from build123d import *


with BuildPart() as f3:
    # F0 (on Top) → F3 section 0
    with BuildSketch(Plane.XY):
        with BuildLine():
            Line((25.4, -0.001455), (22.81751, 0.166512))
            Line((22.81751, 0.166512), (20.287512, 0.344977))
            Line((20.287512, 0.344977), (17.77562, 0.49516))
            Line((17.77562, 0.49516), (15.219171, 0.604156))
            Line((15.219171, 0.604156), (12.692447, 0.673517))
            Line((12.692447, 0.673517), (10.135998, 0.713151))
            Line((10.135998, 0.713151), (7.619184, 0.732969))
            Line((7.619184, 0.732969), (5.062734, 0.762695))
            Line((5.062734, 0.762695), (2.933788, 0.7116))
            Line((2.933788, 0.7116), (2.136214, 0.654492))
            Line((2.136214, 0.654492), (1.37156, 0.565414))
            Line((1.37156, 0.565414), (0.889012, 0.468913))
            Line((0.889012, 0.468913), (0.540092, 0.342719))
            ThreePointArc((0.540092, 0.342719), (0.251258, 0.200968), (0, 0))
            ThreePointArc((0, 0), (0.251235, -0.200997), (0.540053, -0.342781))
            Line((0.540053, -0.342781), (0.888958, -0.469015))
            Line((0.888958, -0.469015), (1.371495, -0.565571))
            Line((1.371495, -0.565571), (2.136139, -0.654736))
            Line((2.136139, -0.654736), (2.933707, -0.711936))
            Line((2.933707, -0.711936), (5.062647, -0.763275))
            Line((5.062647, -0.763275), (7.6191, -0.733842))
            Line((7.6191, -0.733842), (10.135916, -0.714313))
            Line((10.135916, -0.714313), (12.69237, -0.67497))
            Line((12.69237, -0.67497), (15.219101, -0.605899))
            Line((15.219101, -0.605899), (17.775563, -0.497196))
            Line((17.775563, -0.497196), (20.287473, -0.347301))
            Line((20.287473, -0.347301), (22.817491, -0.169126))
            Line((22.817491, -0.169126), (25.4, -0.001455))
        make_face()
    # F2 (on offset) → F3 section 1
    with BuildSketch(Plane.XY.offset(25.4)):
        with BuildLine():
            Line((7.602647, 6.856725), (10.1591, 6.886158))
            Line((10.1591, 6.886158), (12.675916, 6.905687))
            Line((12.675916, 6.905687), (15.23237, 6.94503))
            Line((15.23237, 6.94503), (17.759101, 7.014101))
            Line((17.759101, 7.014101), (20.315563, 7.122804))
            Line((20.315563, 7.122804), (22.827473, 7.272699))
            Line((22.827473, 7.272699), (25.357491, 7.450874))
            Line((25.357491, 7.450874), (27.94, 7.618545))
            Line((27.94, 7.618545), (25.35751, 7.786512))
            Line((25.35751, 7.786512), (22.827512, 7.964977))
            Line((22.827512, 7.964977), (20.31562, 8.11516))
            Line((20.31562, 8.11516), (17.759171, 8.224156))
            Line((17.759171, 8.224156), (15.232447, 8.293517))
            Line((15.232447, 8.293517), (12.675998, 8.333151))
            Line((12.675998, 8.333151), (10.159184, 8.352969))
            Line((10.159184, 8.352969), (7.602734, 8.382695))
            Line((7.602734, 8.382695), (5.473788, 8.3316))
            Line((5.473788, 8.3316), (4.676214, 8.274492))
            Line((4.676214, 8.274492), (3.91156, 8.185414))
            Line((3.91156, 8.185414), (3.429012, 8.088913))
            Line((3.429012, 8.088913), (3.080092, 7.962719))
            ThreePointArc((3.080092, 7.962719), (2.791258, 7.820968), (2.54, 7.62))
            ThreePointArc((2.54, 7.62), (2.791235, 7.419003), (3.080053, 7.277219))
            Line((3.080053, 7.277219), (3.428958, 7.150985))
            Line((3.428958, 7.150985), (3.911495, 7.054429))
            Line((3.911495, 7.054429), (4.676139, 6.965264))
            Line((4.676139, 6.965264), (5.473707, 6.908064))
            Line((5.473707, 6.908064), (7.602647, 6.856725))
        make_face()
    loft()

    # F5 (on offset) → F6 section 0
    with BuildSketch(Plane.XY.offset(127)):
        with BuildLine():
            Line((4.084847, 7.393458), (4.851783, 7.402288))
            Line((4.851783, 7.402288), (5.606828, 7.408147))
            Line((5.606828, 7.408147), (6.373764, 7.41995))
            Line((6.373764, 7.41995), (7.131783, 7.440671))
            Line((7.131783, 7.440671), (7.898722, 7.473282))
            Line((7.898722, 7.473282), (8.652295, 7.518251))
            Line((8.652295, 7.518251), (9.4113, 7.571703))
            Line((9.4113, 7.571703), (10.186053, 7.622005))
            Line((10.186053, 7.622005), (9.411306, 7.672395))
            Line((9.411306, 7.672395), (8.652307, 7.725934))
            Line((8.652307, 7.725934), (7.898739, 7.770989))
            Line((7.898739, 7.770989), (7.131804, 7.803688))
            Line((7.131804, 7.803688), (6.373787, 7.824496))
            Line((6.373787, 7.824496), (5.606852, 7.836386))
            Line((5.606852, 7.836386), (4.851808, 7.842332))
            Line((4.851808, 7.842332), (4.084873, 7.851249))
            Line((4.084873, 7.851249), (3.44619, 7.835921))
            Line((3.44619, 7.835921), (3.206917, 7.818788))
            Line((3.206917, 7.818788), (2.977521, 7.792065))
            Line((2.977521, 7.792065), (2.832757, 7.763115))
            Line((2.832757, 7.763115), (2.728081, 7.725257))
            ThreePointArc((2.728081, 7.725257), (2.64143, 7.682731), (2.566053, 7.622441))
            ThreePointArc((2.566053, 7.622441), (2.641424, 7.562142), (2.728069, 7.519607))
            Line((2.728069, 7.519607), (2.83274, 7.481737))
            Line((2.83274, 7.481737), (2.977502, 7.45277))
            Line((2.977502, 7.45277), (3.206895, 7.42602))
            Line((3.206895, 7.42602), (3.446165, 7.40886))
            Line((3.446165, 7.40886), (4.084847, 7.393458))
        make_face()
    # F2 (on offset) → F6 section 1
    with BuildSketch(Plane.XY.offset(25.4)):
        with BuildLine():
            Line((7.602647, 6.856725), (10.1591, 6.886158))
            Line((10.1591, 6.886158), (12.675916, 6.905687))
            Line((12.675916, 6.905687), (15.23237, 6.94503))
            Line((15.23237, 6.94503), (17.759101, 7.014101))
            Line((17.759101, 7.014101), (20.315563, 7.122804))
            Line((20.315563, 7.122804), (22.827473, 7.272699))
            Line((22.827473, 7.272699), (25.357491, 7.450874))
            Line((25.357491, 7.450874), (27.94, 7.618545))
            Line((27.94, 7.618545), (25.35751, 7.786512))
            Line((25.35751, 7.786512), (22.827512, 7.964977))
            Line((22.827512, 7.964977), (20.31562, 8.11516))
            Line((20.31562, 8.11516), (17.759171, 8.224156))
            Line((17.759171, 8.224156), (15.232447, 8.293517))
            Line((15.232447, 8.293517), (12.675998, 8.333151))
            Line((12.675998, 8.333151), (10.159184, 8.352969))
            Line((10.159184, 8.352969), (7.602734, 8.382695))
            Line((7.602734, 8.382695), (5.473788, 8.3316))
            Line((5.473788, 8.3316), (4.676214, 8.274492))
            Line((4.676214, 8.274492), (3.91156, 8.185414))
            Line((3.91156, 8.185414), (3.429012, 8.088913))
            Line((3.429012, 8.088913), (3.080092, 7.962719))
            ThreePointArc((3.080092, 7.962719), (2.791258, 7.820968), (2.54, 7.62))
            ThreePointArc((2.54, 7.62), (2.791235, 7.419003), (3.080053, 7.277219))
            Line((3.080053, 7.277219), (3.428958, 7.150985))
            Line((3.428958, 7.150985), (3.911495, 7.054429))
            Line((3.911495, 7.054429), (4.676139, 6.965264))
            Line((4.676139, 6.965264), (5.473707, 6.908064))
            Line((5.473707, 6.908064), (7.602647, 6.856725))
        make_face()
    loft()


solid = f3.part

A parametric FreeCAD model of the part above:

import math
import FreeCAD as App
import Part
import Sketcher
from FreeCAD import Vector
Q = App.Units.Quantity

doc = App.newDocument("Part")
body = doc.addObject("PartDesign::Body", "Body")

sketch1 = doc.addObject("Sketcher::SketchObject", "Sketch")
body.addObject(sketch1)
sketch1.AttachmentSupport = (doc.XY_Plane, [""])
sketch1.MapMode = "FlatFace"
sketch1.addGeometry([
    Part.LineSegment(Vector(25.4, -0.001455, 0), Vector(22.81751, 0.166512, 0)),
    Part.LineSegment(Vector(22.81751, 0.166512, 0), Vector(20.287512, 0.344977, 0)),
    Part.LineSegment(Vector(20.287512, 0.344977, 0), Vector(17.77562, 0.49516, 0)),
    Part.LineSegment(Vector(17.77562, 0.49516, 0), Vector(15.219171, 0.604156, 0)),
    Part.LineSegment(Vector(15.219171, 0.604156, 0), Vector(12.692447, 0.673517, 0)),
    Part.LineSegment(Vector(12.692447, 0.673517, 0), Vector(10.135998, 0.713151, 0)),
    Part.LineSegment(Vector(10.135998, 0.713151, 0), Vector(7.619184, 0.732969, 0)),
    Part.LineSegment(Vector(7.619184, 0.732969, 0), Vector(5.062734, 0.762695, 0)),
    Part.LineSegment(Vector(5.062734, 0.762695, 0), Vector(2.933788, 0.7116, 0)),
    Part.LineSegment(Vector(2.933788, 0.7116, 0), Vector(2.136214, 0.654492, 0)),
    Part.LineSegment(Vector(2.136214, 0.654492, 0), Vector(1.37156, 0.565414, 0)),
    Part.LineSegment(Vector(1.37156, 0.565414, 0), Vector(0.889012, 0.468913, 0)),
    Part.LineSegment(Vector(0.889012, 0.468913, 0), Vector(0.540092, 0.342719, 0)),
    Part.ArcOfCircle(Part.Circle(Vector(1.042102, -1.045326, 0), Vector(0, 0, 1), 1.476037), math.radians(109.883384), math.radians(134.911503)),
    Part.ArcOfCircle(Part.Circle(Vector(1.042218, 1.045201, 0), Vector(0, 0, 1), 1.47603), math.radians(-134.918124), math.radians(-109.889884)),
    Part.LineSegment(Vector(0.540053, -0.342781, 0), Vector(0.888958, -0.469015, 0)),
    Part.LineSegment(Vector(0.888958, -0.469015, 0), Vector(1.371495, -0.565571, 0)),
    Part.LineSegment(Vector(1.371495, -0.565571, 0), Vector(2.136139, -0.654736, 0)),
    Part.LineSegment(Vector(2.136139, -0.654736, 0), Vector(2.933707, -0.711936, 0)),
    Part.LineSegment(Vector(2.933707, -0.711936, 0), Vector(5.062647, -0.763275, 0)),
    Part.LineSegment(Vector(5.062647, -0.763275, 0), Vector(7.6191, -0.733842, 0)),
    Part.LineSegment(Vector(7.6191, -0.733842, 0), Vector(10.135916, -0.714313, 0)),
    Part.LineSegment(Vector(10.135916, -0.714313, 0), Vector(12.69237, -0.67497, 0)),
    Part.LineSegment(Vector(12.69237, -0.67497, 0), Vector(15.219101, -0.605899, 0)),
    Part.LineSegment(Vector(15.219101, -0.605899, 0), Vector(17.775563, -0.497196, 0)),
    Part.LineSegment(Vector(17.775563, -0.497196, 0), Vector(20.287473, -0.347301, 0)),
    Part.LineSegment(Vector(20.287473, -0.347301, 0), Vector(22.817491, -0.169126, 0)),
    Part.LineSegment(Vector(22.817491, -0.169126, 0), Vector(25.4, -0.001455, 0)),
], False)
sketch1.addConstraint([
    Sketcher.Constraint("Coincident", 0, 2, 1, 1),
    Sketcher.Constraint("Coincident", 1, 2, 2, 1),
    Sketcher.Constraint("Coincident", 2, 2, 3, 1),
    Sketcher.Constraint("Coincident", 3, 2, 4, 1),
    Sketcher.Constraint("Coincident", 4, 2, 5, 1),
    Sketcher.Constraint("Coincident", 5, 2, 6, 1),
    Sketcher.Constraint("Coincident", 6, 2, 7, 1),
    Sketcher.Constraint("Coincident", 7, 2, 8, 1),
    Sketcher.Constraint("Coincident", 8, 2, 9, 1),
    Sketcher.Constraint("Coincident", 9, 2, 10, 1),
    Sketcher.Constraint("Coincident", 10, 2, 11, 1),
    Sketcher.Constraint("Coincident", 11, 2, 12, 1),
    Sketcher.Constraint("Coincident", 12, 2, 13, 1),
    Sketcher.Constraint("Coincident", 13, 2, 14, 1),
    Sketcher.Constraint("Coincident", 14, 2, 15, 1),
    Sketcher.Constraint("Coincident", 15, 2, 16, 1),
    Sketcher.Constraint("Coincident", 16, 2, 17, 1),
    Sketcher.Constraint("Coincident", 17, 2, 18, 1),
    Sketcher.Constraint("Coincident", 18, 2, 19, 1),
    Sketcher.Constraint("Coincident", 19, 2, 20, 1),
    Sketcher.Constraint("Coincident", 20, 2, 21, 1),
    Sketcher.Constraint("Coincident", 21, 2, 22, 1),
    Sketcher.Constraint("Coincident", 22, 2, 23, 1),
    Sketcher.Constraint("Coincident", 23, 2, 24, 1),
    Sketcher.Constraint("Coincident", 24, 2, 25, 1),
    Sketcher.Constraint("Coincident", 25, 2, 26, 1),
    Sketcher.Constraint("Coincident", 26, 2, 27, 1),
    Sketcher.Constraint("Coincident", 27, 2, 0, 1),
    Sketcher.Constraint("Coincident", 13, 2, -1, 1),
    Sketcher.Constraint("DistanceX", -1, 1, 27, 2, Q("25.4 mm")),
    Sketcher.Constraint("Radius", 14, Q("1.47603 mm")),
    Sketcher.Constraint("DistanceX", -1, 1, 5, 2, Q("10.135998 mm")),
    Sketcher.Constraint("Radius", 13, Q("1.476037 mm")),
    Sketcher.Constraint("DistanceY", -1, 1, 14, 3, Q("1.045201 mm")),
    Sketcher.Constraint("DistanceY", -1, 1, 8, 2, Q("0.7116 mm")),
    Sketcher.Constraint("DistanceX", -1, 1, 20, 2, Q("7.6191 mm")),
    Sketcher.Constraint("DistanceX", -1, 1, 23, 2, Q("15.219101 mm")),
    Sketcher.Constraint("DistanceY", 23, 2, -1, 1, Q("0.605899 mm")),
    Sketcher.Constraint("DistanceY", 25, 2, -1, 1, Q("0.347301 mm")),
    Sketcher.Constraint("DistanceX", 14, 3, 2, 2, Q("16.733402 mm")),
    Sketcher.Constraint("DistanceY", 11, 2, 10, 2, Q("0.096501 mm")),
    Sketcher.Constraint("DistanceX", 11, 2, 9, 2, Q("1.247202 mm")),
    Sketcher.Constraint("DistanceY", 14, 2, 12, 2, Q("0.6855 mm")),
    Sketcher.Constraint("DistanceY", 18, 2, 17, 2, Q("0.0572 mm")),
    Sketcher.Constraint("DistanceX", 22, 2, 3, 2, Q("2.526801 mm")),
    Sketcher.Constraint("Distance", 3, Q("2.558772 mm")),
    Sketcher.Constraint("Distance", 8, Q("2.129559 mm")),
    Sketcher.Constraint("Distance", 12, Q("0.371039 mm")),
    Sketcher.Constraint("Distance", 15, Q("0.371039 mm")),
    Sketcher.Constraint("Distance", 19, Q("2.129559 mm")),
    Sketcher.Constraint("Distance", 21, Q("2.516892 mm")),
    Sketcher.Constraint("Distance", 25, Q("2.516378 mm")),
    Sketcher.Constraint("DistanceX", -1, 1, 0, 2, Q("22.81751 mm")),
    Sketcher.Constraint("DistanceX", -1, 1, 1, 2, Q("20.287512 mm")),
    Sketcher.Constraint("DistanceY", -1, 1, 2, 2, Q("0.49516 mm")),
    Sketcher.Constraint("DistanceX", -1, 1, 3, 2, Q("15.219171 mm")),
    Sketcher.Constraint("DistanceY", -1, 1, 5, 2, Q("0.713151 mm")),
    Sketcher.Constraint("DistanceY", -1, 1, 6, 2, Q("0.732969 mm")),
    Sketcher.Constraint("DistanceY", -1, 1, 9, 2, Q("0.654492 mm")),
    Sketcher.Constraint("DistanceX", -1, 1, 10, 2, Q("1.37156 mm")),
    Sketcher.Constraint("DistanceY", -1, 1, 12, 2, Q("0.342719 mm")),
    Sketcher.Constraint("DistanceX", -1, 1, 15, 2, Q("0.888958 mm")),
    Sketcher.Constraint("DistanceY", 16, 2, -1, 1, Q("0.565571 mm")),
    Sketcher.Constraint("DistanceX", -1, 1, 17, 2, Q("2.136139 mm")),
    Sketcher.Constraint("DistanceY", 20, 2, -1, 1, Q("0.733842 mm")),
    Sketcher.Constraint("DistanceY", 22, 2, -1, 1, Q("0.67497 mm")),
    Sketcher.Constraint("DistanceX", -1, 1, 26, 2, Q("22.817491 mm")),
    Sketcher.Constraint("DistanceY", 0, 2, 14, 3, Q("0.878689 mm")),
    Sketcher.Constraint("DistanceY", 13, 3, 0, 2, Q("1.211838 mm")),
    Sketcher.Constraint("DistanceY", 1, 2, 3, 2, Q("0.259179 mm")),
    Sketcher.Constraint("DistanceY", 3, 2, 4, 2, Q("0.069361 mm")),
    Sketcher.Constraint("DistanceX", 14, 3, 4, 2, Q("11.650229 mm")),
    Sketcher.Constraint("DistanceX", 13, 3, 6, 2, Q("6.577082 mm")),
    Sketcher.Constraint("DistanceX", 7, 2, 6, 2, Q("2.55645 mm")),
    Sketcher.Constraint("DistanceY", 13, 3, 7, 2, Q("1.808021 mm")),
    Sketcher.Constraint("DistanceX", 13, 3, 9, 2, Q("1.094112 mm")),
    Sketcher.Constraint("DistanceY", 13, 3, 17, 2, Q("0.39059 mm")),
    Sketcher.Constraint("DistanceX", 17, 2, 18, 2, Q("0.797568 mm")),
    Sketcher.Constraint("DistanceY", 19, 2, 7, 2, Q("1.52597 mm")),
    Sketcher.Constraint("DistanceY", 20, 2, 21, 2, Q("0.019529 mm")),
    Sketcher.Constraint("DistanceX", 23, 2, 24, 2, Q("2.556462 mm")),
    Sketcher.Constraint("DistanceX", 24, 2, 25, 2, Q("2.51191 mm")),
    Sketcher.Constraint("DistanceY", 24, 2, 26, 2, Q("0.32807 mm")),
    Sketcher.Constraint("DistanceY", 26, 2, 27, 2, Q("0.167671 mm")),
    Sketcher.Constraint("Distance", 16, Q("0.492103 mm")),
])

sketch2 = doc.addObject("Sketcher::SketchObject", "Sketch001")
body.addObject(sketch2)
sketch2.AttachmentSupport = (doc.XY_Plane, [""])
sketch2.MapMode = "FlatFace"
sketch2.AttachmentOffset = App.Placement(Vector(0, 0, 25.4), App.Rotation())
sketch2.addGeometry([
    Part.LineSegment(Vector(7.6, 6.86, 0), Vector(10.16, 6.89, 0)),
    Part.LineSegment(Vector(10.16, 6.89, 0), Vector(12.68, 6.91, 0)),
    Part.LineSegment(Vector(12.68, 6.91, 0), Vector(15.23, 6.95, 0)),
    Part.LineSegment(Vector(15.23, 6.95, 0), Vector(17.76, 7.01, 0)),
    Part.LineSegment(Vector(17.76, 7.01, 0), Vector(20.32, 7.12, 0)),
    Part.LineSegment(Vector(20.32, 7.12, 0), Vector(22.83, 7.27, 0)),
    Part.LineSegment(Vector(22.83, 7.27, 0), Vector(25.36, 7.45, 0)),
    Part.LineSegment(Vector(25.36, 7.45, 0), Vector(27.94, 7.62, 0)),
    Part.LineSegment(Vector(27.94, 7.62, 0), Vector(25.36, 7.79, 0)),
    Part.LineSegment(Vector(25.36, 7.79, 0), Vector(22.83, 7.96, 0)),
    Part.LineSegment(Vector(22.83, 7.96, 0), Vector(20.32, 8.12, 0)),
    Part.LineSegment(Vector(20.32, 8.12, 0), Vector(17.76, 8.22, 0)),
    Part.LineSegment(Vector(17.76, 8.22, 0), Vector(15.23, 8.29, 0)),
    Part.LineSegment(Vector(15.23, 8.29, 0), Vector(12.68, 8.33, 0)),
    Part.LineSegment(Vector(12.68, 8.33, 0), Vector(10.16, 8.35, 0)),
    Part.LineSegment(Vector(10.16, 8.35, 0), Vector(7.6, 8.38, 0)),
    Part.LineSegment(Vector(7.6, 8.38, 0), Vector(5.47, 8.33, 0)),
    Part.LineSegment(Vector(5.47, 8.33, 0), Vector(4.68, 8.27, 0)),
    Part.LineSegment(Vector(4.68, 8.27, 0), Vector(3.91, 8.19, 0)),
    Part.LineSegment(Vector(3.91, 8.19, 0), Vector(3.43, 8.09, 0)),
    Part.LineSegment(Vector(3.43, 8.09, 0), Vector(3.08, 7.96, 0)),
    Part.ArcOfCircle(Part.Circle(Vector(3.58, 6.57, 0), Vector(0, 0, 1), 1.48), math.radians(110), math.radians(135)),
    Part.ArcOfCircle(Part.Circle(Vector(3.58, 8.67, 0), Vector(0, 0, 1), 1.48), math.radians(-135), math.radians(-110)),
    Part.LineSegment(Vector(3.08, 7.28, 0), Vector(3.43, 7.15, 0)),
    Part.LineSegment(Vector(3.43, 7.15, 0), Vector(3.91, 7.05, 0)),
    Part.LineSegment(Vector(3.91, 7.05, 0), Vector(4.68, 6.97, 0)),
    Part.LineSegment(Vector(4.68, 6.97, 0), Vector(5.47, 6.91, 0)),
    Part.LineSegment(Vector(5.47, 6.91, 0), Vector(7.6, 6.86, 0)),
], False)
sketch2.addConstraint([
    Sketcher.Constraint("Coincident", 0, 2, 1, 1),
    Sketcher.Constraint("Coincident", 1, 2, 2, 1),
    Sketcher.Constraint("Coincident", 2, 2, 3, 1),
    Sketcher.Constraint("Coincident", 3, 2, 4, 1),
    Sketcher.Constraint("Coincident", 4, 2, 5, 1),
    Sketcher.Constraint("Coincident", 5, 2, 6, 1),
    Sketcher.Constraint("Coincident", 6, 2, 7, 1),
    Sketcher.Constraint("Coincident", 7, 2, 8, 1),
    Sketcher.Constraint("Coincident", 8, 2, 9, 1),
    Sketcher.Constraint("Coincident", 9, 2, 10, 1),
    Sketcher.Constraint("Coincident", 10, 2, 11, 1),
    Sketcher.Constraint("Coincident", 11, 2, 12, 1),
    Sketcher.Constraint("Coincident", 12, 2, 13, 1),
    Sketcher.Constraint("Coincident", 13, 2, 14, 1),
    Sketcher.Constraint("Coincident", 14, 2, 15, 1),
    Sketcher.Constraint("Coincident", 15, 2, 16, 1),
    Sketcher.Constraint("Coincident", 16, 2, 17, 1),
    Sketcher.Constraint("Coincident", 17, 2, 18, 1),
    Sketcher.Constraint("Coincident", 18, 2, 19, 1),
    Sketcher.Constraint("Coincident", 19, 2, 20, 1),
    Sketcher.Constraint("Coincident", 20, 2, 21, 1),
    Sketcher.Constraint("Coincident", 21, 2, 22, 1),
    Sketcher.Constraint("Coincident", 22, 2, 23, 1),
    Sketcher.Constraint("Coincident", 23, 2, 24, 1),
    Sketcher.Constraint("Coincident", 24, 2, 25, 1),
    Sketcher.Constraint("Coincident", 25, 2, 26, 1),
    Sketcher.Constraint("Coincident", 26, 2, 27, 1),
    Sketcher.Constraint("Coincident", 27, 2, 0, 1),
    Sketcher.Constraint("Equal", 7, 8),
    Sketcher.Constraint("Equal", 6, 9),
    Sketcher.Constraint("Equal", 5, 10),
    Sketcher.Constraint("Equal", 4, 11),
    Sketcher.Constraint("Equal", 3, 12),
    Sketcher.Constraint("Equal", 2, 13),
    Sketcher.Constraint("Equal", 1, 14),
    Sketcher.Constraint("Equal", 0, 15),
    Sketcher.Constraint("Equal", 20, 23),
    Sketcher.Constraint("Equal", 19, 24),
    Sketcher.Constraint("Equal", 18, 25),
    Sketcher.Constraint("Equal", 17, 26),
    Sketcher.Constraint("Equal", 16, 27),
    Sketcher.Constraint("DistanceX", 0, 2, 3, 2, Q("7.600001 mm")),
    Sketcher.Constraint("DistanceX", -1, 1, 7, 2, Q("27.94 mm")),
    Sketcher.Constraint("DistanceX", -1, 1, 21, 2, Q("2.54 mm")),
    Sketcher.Constraint("DistanceY", -1, 1, 21, 2, Q("7.62 mm")),
    Sketcher.Constraint("Radius", 22, Q("1.47603 mm")),
    Sketcher.Constraint("DistanceX", 9, 2, 8, 2, Q("2.529998 mm")),
    Sketcher.Constraint("Radius", 21, Q("1.476037 mm")),
    Sketcher.Constraint("DistanceX", 21, 3, 3, 2, Q("14.176999 mm")),
    Sketcher.Constraint("DistanceY", -1, 1, 22, 3, Q("8.665201 mm")),
    Sketcher.Constraint("DistanceX", -1, 1, 0, 2, Q("10.1591 mm")),
    Sketcher.Constraint("DistanceY", -1, 1, 3, 2, Q("7.014101 mm")),
    Sketcher.Constraint("DistanceY", -1, 1, 5, 2, Q("7.272699 mm")),
    Sketcher.Constraint("DistanceY", -1, 1, 16, 2, Q("8.3316 mm")),
    Sketcher.Constraint("DistanceX", 2, 2, 11, 2, Q("2.526801 mm")),
    Sketcher.Constraint("DistanceY", 19, 2, 18, 2, Q("0.096501 mm")),
    Sketcher.Constraint("DistanceX", 19, 2, 17, 2, Q("1.247202 mm")),
    Sketcher.Constraint("DistanceY", 22, 2, 20, 2, Q("0.6855 mm")),
    Sketcher.Constraint("DistanceY", 26, 2, 25, 2, Q("0.0572 mm")),
    Sketcher.Constraint("Distance", 1, Q("2.516892 mm")),
    Sketcher.Constraint("Distance", 5, Q("2.516378 mm")),
    Sketcher.Constraint("Distance", 11, Q("2.558772 mm")),
    Sketcher.Constraint("Distance", 16, Q("2.129559 mm")),
    Sketcher.Constraint("Distance", 20, Q("0.371039 mm")),
    Sketcher.Constraint("DistanceX", -1, 1, 2, 2, Q("15.23237 mm")),
    Sketcher.Constraint("DistanceY", -1, 1, 2, 2, Q("6.94503 mm")),
    Sketcher.Constraint("DistanceX", -1, 1, 6, 2, Q("25.357491 mm")),
    Sketcher.Constraint("DistanceX", -1, 1, 8, 2, Q("25.35751 mm")),
    Sketcher.Constraint("DistanceX", -1, 1, 10, 2, Q("20.31562 mm")),
    Sketcher.Constraint("DistanceY", -1, 1, 10, 2, Q("8.11516 mm")),
    Sketcher.Constraint("DistanceY", -1, 1, 13, 2, Q("8.333151 mm")),
    Sketcher.Constraint("DistanceY", -1, 1, 14, 2, Q("8.352969 mm")),
    Sketcher.Constraint("DistanceX", -1, 1, 18, 2, Q("3.91156 mm")),
    Sketcher.Constraint("DistanceX", -1, 1, 20, 2, Q("3.080092 mm")),
    Sketcher.Constraint("DistanceX", -1, 1, 23, 2, Q("3.428958 mm")),
    Sketcher.Constraint("DistanceY", -1, 1, 24, 2, Q("7.054429 mm")),
    Sketcher.Constraint("DistanceX", -1, 1, 25, 2, Q("4.676139 mm")),
    Sketcher.Constraint("DistanceY", 0, 2, 1, 2, Q("0.019529 mm")),
    Sketcher.Constraint("DistanceX", 3, 2, 4, 2, Q("2.556462 mm")),
    Sketcher.Constraint("DistanceY", 1, 2, 5, 2, Q("0.367012 mm")),
    Sketcher.Constraint("DistanceY", 4, 2, 6, 2, Q("0.32807 mm")),
    Sketcher.Constraint("DistanceY", 11, 2, 12, 2, Q("0.069361 mm")),
    Sketcher.Constraint("DistanceX", 15, 2, 14, 2, Q("2.55645 mm")),
    Sketcher.Constraint("DistanceY", 21, 3, 15, 2, Q("1.808021 mm")),
    Sketcher.Constraint("DistanceY", 17, 2, 22, 3, Q("0.390709 mm")),
    Sketcher.Constraint("DistanceX", 21, 3, 17, 2, Q("1.094112 mm")),
])

additiveloft = doc.addObject("PartDesign::AdditiveLoft", "AdditiveLoft")
body.addObject(additiveloft)
additiveloft.Profile = sketch1
additiveloft.Sections = [sketch2]

sketch3 = doc.addObject("Sketcher::SketchObject", "Sketch002")
body.addObject(sketch3)
sketch3.AttachmentSupport = (doc.XY_Plane, [""])
sketch3.MapMode = "FlatFace"
sketch3.AttachmentOffset = App.Placement(Vector(0, 0, 127), App.Rotation())
sketch3.addGeometry([
    Part.LineSegment(Vector(4.08, 7.39, 0), Vector(4.85, 7.4, 0)),
    Part.LineSegment(Vector(4.85, 7.4, 0), Vector(5.61, 7.41, 0)),
    Part.LineSegment(Vector(5.61, 7.41, 0), Vector(6.37, 7.42, 0)),
    Part.LineSegment(Vector(6.37, 7.42, 0), Vector(7.13, 7.44, 0)),
    Part.LineSegment(Vector(7.13, 7.44, 0), Vector(7.9, 7.47, 0)),
    Part.LineSegment(Vector(7.9, 7.47, 0), Vector(8.65, 7.52, 0)),
    Part.LineSegment(Vector(8.65, 7.52, 0), Vector(9.41, 7.57, 0)),
    Part.LineSegment(Vector(9.41, 7.57, 0), Vector(10.19, 7.62, 0)),
    Part.LineSegment(Vector(10.19, 7.62, 0), Vector(9.41, 7.67, 0)),
    Part.LineSegment(Vector(9.41, 7.67, 0), Vector(8.65, 7.73, 0)),
    Part.LineSegment(Vector(8.65, 7.73, 0), Vector(7.9, 7.77, 0)),
    Part.LineSegment(Vector(7.9, 7.77, 0), Vector(7.13, 7.8, 0)),
    Part.LineSegment(Vector(7.13, 7.8, 0), Vector(6.37, 7.82, 0)),
    Part.LineSegment(Vector(6.37, 7.82, 0), Vector(5.61, 7.84, 0)),
    Part.LineSegment(Vector(5.61, 7.84, 0), Vector(4.85, 7.84, 0)),
    Part.LineSegment(Vector(4.85, 7.84, 0), Vector(4.08, 7.85, 0)),
    Part.LineSegment(Vector(4.08, 7.85, 0), Vector(3.45, 7.84, 0)),
    Part.LineSegment(Vector(3.45, 7.84, 0), Vector(3.21, 7.82, 0)),
    Part.LineSegment(Vector(3.21, 7.82, 0), Vector(2.98, 7.79, 0)),
    Part.LineSegment(Vector(2.98, 7.79, 0), Vector(2.83, 7.76, 0)),
    Part.LineSegment(Vector(2.83, 7.76, 0), Vector(2.73, 7.73, 0)),
    Part.ArcOfCircle(Part.Circle(Vector(2.88, 7.31, 0), Vector(0, 0, 1), 0.44), math.radians(110), math.radians(135)),
    Part.ArcOfCircle(Part.Circle(Vector(2.88, 7.94, 0), Vector(0, 0, 1), 0.44), math.radians(-135), math.radians(-110)),
    Part.LineSegment(Vector(2.73, 7.52, 0), Vector(2.83, 7.48, 0)),
    Part.LineSegment(Vector(2.83, 7.48, 0), Vector(2.98, 7.45, 0)),
    Part.LineSegment(Vector(2.98, 7.45, 0), Vector(3.21, 7.43, 0)),
    Part.LineSegment(Vector(3.21, 7.43, 0), Vector(3.45, 7.41, 0)),
    Part.LineSegment(Vector(3.45, 7.41, 0), Vector(4.08, 7.39, 0)),
], False)
sketch3.addConstraint([
    Sketcher.Constraint("Coincident", 0, 2, 1, 1),
    Sketcher.Constraint("Coincident", 1, 2, 2, 1),
    Sketcher.Constraint("Coincident", 2, 2, 3, 1),
    Sketcher.Constraint("Coincident", 3, 2, 4, 1),
    Sketcher.Constraint("Coincident", 4, 2, 5, 1),
    Sketcher.Constraint("Coincident", 5, 2, 6, 1),
    Sketcher.Constraint("Coincident", 6, 2, 7, 1),
    Sketcher.Constraint("Coincident", 7, 2, 8, 1),
    Sketcher.Constraint("Coincident", 8, 2, 9, 1),
    Sketcher.Constraint("Coincident", 9, 2, 10, 1),
    Sketcher.Constraint("Coincident", 10, 2, 11, 1),
    Sketcher.Constraint("Coincident", 11, 2, 12, 1),
    Sketcher.Constraint("Coincident", 12, 2, 13, 1),
    Sketcher.Constraint("Coincident", 13, 2, 14, 1),
    Sketcher.Constraint("Coincident", 14, 2, 15, 1),
    Sketcher.Constraint("Coincident", 15, 2, 16, 1),
    Sketcher.Constraint("Coincident", 16, 2, 17, 1),
    Sketcher.Constraint("Coincident", 17, 2, 18, 1),
    Sketcher.Constraint("Coincident", 18, 2, 19, 1),
    Sketcher.Constraint("Coincident", 19, 2, 20, 1),
    Sketcher.Constraint("Coincident", 20, 2, 21, 1),
    Sketcher.Constraint("Coincident", 21, 2, 22, 1),
    Sketcher.Constraint("Coincident", 22, 2, 23, 1),
    Sketcher.Constraint("Coincident", 23, 2, 24, 1),
    Sketcher.Constraint("Coincident", 24, 2, 25, 1),
    Sketcher.Constraint("Coincident", 25, 2, 26, 1),
    Sketcher.Constraint("Coincident", 26, 2, 27, 1),
    Sketcher.Constraint("Coincident", 27, 2, 0, 1),
    Sketcher.Constraint("Equal", 7, 8),
    Sketcher.Constraint("Equal", 6, 9),
    Sketcher.Constraint("Equal", 5, 10),
    Sketcher.Constraint("Equal", 4, 11),
    Sketcher.Constraint("Equal", 3, 12),
    Sketcher.Constraint("Equal", 2, 13),
    Sketcher.Constraint("Equal", 1, 14),
    Sketcher.Constraint("Equal", 0, 15),
    Sketcher.Constraint("Equal", 20, 23),
    Sketcher.Constraint("Equal", 19, 24),
    Sketcher.Constraint("Equal", 18, 25),
    Sketcher.Constraint("Equal", 17, 26),
    Sketcher.Constraint("Equal", 16, 27),
    Sketcher.Constraint("Radius", 21, Q("0.442819 mm")),
    Sketcher.Constraint("DistanceX", 0, 2, 3, 2, Q("2.28 mm")),
    Sketcher.Constraint("Radius", 22, Q("0.442817 mm")),
    Sketcher.Constraint("DistanceX", 9, 2, 8, 2, Q("0.758999 mm")),
    Sketcher.Constraint("DistanceX", -1, 1, 6, 2, Q("9.4113 mm")),
    Sketcher.Constraint("DistanceX", -1, 1, 24, 2, Q("2.977502 mm")),
    Sketcher.Constraint("DistanceY", 2, 2, 5, 2, Q("0.098301 mm")),
    Sketcher.Constraint("DistanceY", 6, 2, 7, 2, Q("0.050302 mm")),
    Sketcher.Constraint("DistanceY", 10, 2, 11, 2, Q("0.032699 mm")),
    Sketcher.Constraint("DistanceX", 21, 3, 16, 2, Q("0.567502 mm")),
    Sketcher.Constraint("DistanceX", 22, 3, 18, 2, Q("0.098799 mm")),
    Sketcher.Constraint("DistanceY", 21, 3, 23, 2, Q("0.172901 mm")),
    Sketcher.Constraint("DistanceY", 27, 2, 26, 2, Q("0.015402 mm")),
    Sketcher.Constraint("Distance", 11, Q("0.767632 mm")),
    Sketcher.Constraint("Distance", 19, Q("0.14763 mm")),
    Sketcher.Constraint("Distance", 20, Q("0.111312 mm")),
    Sketcher.Constraint("DistanceX", -1, 1, 21, 3, Q("2.878688 mm")),
    Sketcher.Constraint("DistanceY", -1, 1, 22, 3, Q("7.936009 mm")),
    Sketcher.Constraint("DistanceY", -1, 1, 0, 2, Q("7.402288 mm")),
    Sketcher.Constraint("DistanceY", -1, 1, 2, 2, Q("7.41995 mm")),
    Sketcher.Constraint("DistanceY", -1, 1, 3, 2, Q("7.440671 mm")),
    Sketcher.Constraint("DistanceX", -1, 1, 10, 2, Q("7.898739 mm")),
    Sketcher.Constraint("DistanceY", -1, 1, 10, 2, Q("7.770989 mm")),
    Sketcher.Constraint("DistanceY", -1, 1, 15, 2, Q("7.851249 mm")),
    Sketcher.Constraint("DistanceY", -1, 1, 16, 2, Q("7.835921 mm")),
    Sketcher.Constraint("DistanceX", -1, 1, 18, 2, Q("2.977521 mm")),
    Sketcher.Constraint("DistanceX", -1, 1, 20, 2, Q("2.728081 mm")),
    Sketcher.Constraint("DistanceY", -1, 1, 21, 2, Q("7.622441 mm")),
    Sketcher.Constraint("DistanceX", -1, 1, 22, 2, Q("2.728069 mm")),
    Sketcher.Constraint("DistanceY", -1, 1, 25, 2, Q("7.42602 mm")),
    Sketcher.Constraint("DistanceY", -1, 1, 26, 2, Q("7.40886 mm")),
    Sketcher.Constraint("DistanceX", 22, 3, 0, 2, Q("1.973061 mm")),
    Sketcher.Constraint("DistanceY", 0, 2, 1, 2, Q("0.005859 mm")),
    Sketcher.Constraint("DistanceX", 21, 3, 1, 2, Q("2.72814 mm")),
    Sketcher.Constraint("DistanceX", 0, 2, 2, 2, Q("1.521981 mm")),
    Sketcher.Constraint("DistanceX", 3, 2, 4, 2, Q("0.766939 mm")),
    Sketcher.Constraint("DistanceX", 2, 2, 5, 2, Q("2.278531 mm")),
    Sketcher.Constraint("DistanceY", 4, 2, 6, 2, Q("0.098421 mm")),
    Sketcher.Constraint("DistanceX", 4, 2, 7, 2, Q("2.287331 mm")),
    Sketcher.Constraint("DistanceX", 1, 2, 12, 2, Q("0.766959 mm")),
    Sketcher.Constraint("DistanceY", 1, 2, 13, 2, Q("0.428239 mm")),
    Sketcher.Constraint("DistanceX", 14, 2, 1, 2, Q("0.75502 mm")),
    Sketcher.Constraint("DistanceX", 15, 2, 0, 2, Q("0.76691 mm")),
    Sketcher.Constraint("DistanceY", 17, 2, 22, 3, Q("0.117221 mm")),
    Sketcher.Constraint("DistanceX", 21, 3, 17, 2, Q("0.328229 mm")),
])

sketch4 = doc.addObject("Sketcher::SketchObject", "Sketch003")
body.addObject(sketch4)
sketch4.AttachmentSupport = (doc.XY_Plane, [""])
sketch4.MapMode = "FlatFace"
sketch4.AttachmentOffset = App.Placement(Vector(0, 0, 25.4), App.Rotation())
sketch4.addGeometry([
    Part.LineSegment(Vector(7.6, 6.86, 0), Vector(10.16, 6.89, 0)),
    Part.LineSegment(Vector(10.16, 6.89, 0), Vector(12.68, 6.91, 0)),
    Part.LineSegment(Vector(12.68, 6.91, 0), Vector(15.23, 6.95, 0)),
    Part.LineSegment(Vector(15.23, 6.95, 0), Vector(17.76, 7.01, 0)),
    Part.LineSegment(Vector(17.76, 7.01, 0), Vector(20.32, 7.12, 0)),
    Part.LineSegment(Vector(20.32, 7.12, 0), Vector(22.83, 7.27, 0)),
    Part.LineSegment(Vector(22.83, 7.27, 0), Vector(25.36, 7.45, 0)),
    Part.LineSegment(Vector(25.36, 7.45, 0), Vector(27.94, 7.62, 0)),
    Part.LineSegment(Vector(27.94, 7.62, 0), Vector(25.36, 7.79, 0)),
    Part.LineSegment(Vector(25.36, 7.79, 0), Vector(22.83, 7.96, 0)),
    Part.LineSegment(Vector(22.83, 7.96, 0), Vector(20.32, 8.12, 0)),
    Part.LineSegment(Vector(20.32, 8.12, 0), Vector(17.76, 8.22, 0)),
    Part.LineSegment(Vector(17.76, 8.22, 0), Vector(15.23, 8.29, 0)),
    Part.LineSegment(Vector(15.23, 8.29, 0), Vector(12.68, 8.33, 0)),
    Part.LineSegment(Vector(12.68, 8.33, 0), Vector(10.16, 8.35, 0)),
    Part.LineSegment(Vector(10.16, 8.35, 0), Vector(7.6, 8.38, 0)),
    Part.LineSegment(Vector(7.6, 8.38, 0), Vector(5.47, 8.33, 0)),
    Part.LineSegment(Vector(5.47, 8.33, 0), Vector(4.68, 8.27, 0)),
    Part.LineSegment(Vector(4.68, 8.27, 0), Vector(3.91, 8.19, 0)),
    Part.LineSegment(Vector(3.91, 8.19, 0), Vector(3.43, 8.09, 0)),
    Part.LineSegment(Vector(3.43, 8.09, 0), Vector(3.08, 7.96, 0)),
    Part.ArcOfCircle(Part.Circle(Vector(3.58, 6.57, 0), Vector(0, 0, 1), 1.48), math.radians(110), math.radians(135)),
    Part.ArcOfCircle(Part.Circle(Vector(3.58, 8.67, 0), Vector(0, 0, 1), 1.48), math.radians(-135), math.radians(-110)),
    Part.LineSegment(Vector(3.08, 7.28, 0), Vector(3.43, 7.15, 0)),
    Part.LineSegment(Vector(3.43, 7.15, 0), Vector(3.91, 7.05, 0)),
    Part.LineSegment(Vector(3.91, 7.05, 0), Vector(4.68, 6.97, 0)),
    Part.LineSegment(Vector(4.68, 6.97, 0), Vector(5.47, 6.91, 0)),
    Part.LineSegment(Vector(5.47, 6.91, 0), Vector(7.6, 6.86, 0)),
], False)
sketch4.addConstraint([
    Sketcher.Constraint("Coincident", 0, 2, 1, 1),
    Sketcher.Constraint("Coincident", 1, 2, 2, 1),
    Sketcher.Constraint("Coincident", 2, 2, 3, 1),
    Sketcher.Constraint("Coincident", 3, 2, 4, 1),
    Sketcher.Constraint("Coincident", 4, 2, 5, 1),
    Sketcher.Constraint("Coincident", 5, 2, 6, 1),
    Sketcher.Constraint("Coincident", 6, 2, 7, 1),
    Sketcher.Constraint("Coincident", 7, 2, 8, 1),
    Sketcher.Constraint("Coincident", 8, 2, 9, 1),
    Sketcher.Constraint("Coincident", 9, 2, 10, 1),
    Sketcher.Constraint("Coincident", 10, 2, 11, 1),
    Sketcher.Constraint("Coincident", 11, 2, 12, 1),
    Sketcher.Constraint("Coincident", 12, 2, 13, 1),
    Sketcher.Constraint("Coincident", 13, 2, 14, 1),
    Sketcher.Constraint("Coincident", 14, 2, 15, 1),
    Sketcher.Constraint("Coincident", 15, 2, 16, 1),
    Sketcher.Constraint("Coincident", 16, 2, 17, 1),
    Sketcher.Constraint("Coincident", 17, 2, 18, 1),
    Sketcher.Constraint("Coincident", 18, 2, 19, 1),
    Sketcher.Constraint("Coincident", 19, 2, 20, 1),
    Sketcher.Constraint("Coincident", 20, 2, 21, 1),
    Sketcher.Constraint("Coincident", 21, 2, 22, 1),
    Sketcher.Constraint("Coincident", 22, 2, 23, 1),
    Sketcher.Constraint("Coincident", 23, 2, 24, 1),
    Sketcher.Constraint("Coincident", 24, 2, 25, 1),
    Sketcher.Constraint("Coincident", 25, 2, 26, 1),
    Sketcher.Constraint("Coincident", 26, 2, 27, 1),
    Sketcher.Constraint("Coincident", 27, 2, 0, 1),
    Sketcher.Constraint("Equal", 7, 8),
    Sketcher.Constraint("Equal", 6, 9),
    Sketcher.Constraint("Equal", 5, 10),
    Sketcher.Constraint("Equal", 4, 11),
    Sketcher.Constraint("Equal", 3, 12),
    Sketcher.Constraint("Equal", 2, 13),
    Sketcher.Constraint("Equal", 1, 14),
    Sketcher.Constraint("Equal", 0, 15),
    Sketcher.Constraint("Equal", 20, 23),
    Sketcher.Constraint("Equal", 19, 24),
    Sketcher.Constraint("Equal", 18, 25),
    Sketcher.Constraint("Equal", 17, 26),
    Sketcher.Constraint("Equal", 16, 27),
    Sketcher.Constraint("DistanceX", 0, 2, 3, 2, Q("7.600001 mm")),
    Sketcher.Constraint("DistanceX", -1, 1, 7, 2, Q("27.94 mm")),
    Sketcher.Constraint("DistanceX", -1, 1, 21, 2, Q("2.54 mm")),
    Sketcher.Constraint("DistanceY", -1, 1, 21, 2, Q("7.62 mm")),
    Sketcher.Constraint("Radius", 22, Q("1.47603 mm")),
    Sketcher.Constraint("DistanceX", 9, 2, 8, 2, Q("2.529998 mm")),
    Sketcher.Constraint("Radius", 21, Q("1.476037 mm")),
    Sketcher.Constraint("DistanceX", 21, 3, 3, 2, Q("14.176999 mm")),
    Sketcher.Constraint("DistanceY", -1, 1, 22, 3, Q("8.665201 mm")),
    Sketcher.Constraint("DistanceX", -1, 1, 0, 2, Q("10.1591 mm")),
    Sketcher.Constraint("DistanceY", -1, 1, 3, 2, Q("7.014101 mm")),
    Sketcher.Constraint("DistanceY", -1, 1, 5, 2, Q("7.272699 mm")),
    Sketcher.Constraint("DistanceY", -1, 1, 16, 2, Q("8.3316 mm")),
    Sketcher.Constraint("DistanceX", 2, 2, 11, 2, Q("2.526801 mm")),
    Sketcher.Constraint("DistanceY", 19, 2, 18, 2, Q("0.096501 mm")),
    Sketcher.Constraint("DistanceX", 19, 2, 17, 2, Q("1.247202 mm")),
    Sketcher.Constraint("DistanceY", 22, 2, 20, 2, Q("0.6855 mm")),
    Sketcher.Constraint("DistanceY", 26, 2, 25, 2, Q("0.0572 mm")),
    Sketcher.Constraint("Distance", 1, Q("2.516892 mm")),
    Sketcher.Constraint("Distance", 5, Q("2.516378 mm")),
    Sketcher.Constraint("Distance", 11, Q("2.558772 mm")),
    Sketcher.Constraint("Distance", 16, Q("2.129559 mm")),
    Sketcher.Constraint("Distance", 20, Q("0.371039 mm")),
    Sketcher.Constraint("DistanceX", -1, 1, 2, 2, Q("15.23237 mm")),
    Sketcher.Constraint("DistanceY", -1, 1, 2, 2, Q("6.94503 mm")),
    Sketcher.Constraint("DistanceX", -1, 1, 6, 2, Q("25.357491 mm")),
    Sketcher.Constraint("DistanceX", -1, 1, 8, 2, Q("25.35751 mm")),
    Sketcher.Constraint("DistanceX", -1, 1, 10, 2, Q("20.31562 mm")),
    Sketcher.Constraint("DistanceY", -1, 1, 10, 2, Q("8.11516 mm")),
    Sketcher.Constraint("DistanceY", -1, 1, 13, 2, Q("8.333151 mm")),
    Sketcher.Constraint("DistanceY", -1, 1, 14, 2, Q("8.352969 mm")),
    Sketcher.Constraint("DistanceX", -1, 1, 18, 2, Q("3.91156 mm")),
    Sketcher.Constraint("DistanceX", -1, 1, 20, 2, Q("3.080092 mm")),
    Sketcher.Constraint("DistanceX", -1, 1, 23, 2, Q("3.428958 mm")),
    Sketcher.Constraint("DistanceY", -1, 1, 24, 2, Q("7.054429 mm")),
    Sketcher.Constraint("DistanceX", -1, 1, 25, 2, Q("4.676139 mm")),
    Sketcher.Constraint("DistanceY", 0, 2, 1, 2, Q("0.019529 mm")),
    Sketcher.Constraint("DistanceX", 3, 2, 4, 2, Q("2.556462 mm")),
    Sketcher.Constraint("DistanceY", 1, 2, 5, 2, Q("0.367012 mm")),
    Sketcher.Constraint("DistanceY", 4, 2, 6, 2, Q("0.32807 mm")),
    Sketcher.Constraint("DistanceY", 11, 2, 12, 2, Q("0.069361 mm")),
    Sketcher.Constraint("DistanceX", 15, 2, 14, 2, Q("2.55645 mm")),
    Sketcher.Constraint("DistanceY", 21, 3, 15, 2, Q("1.808021 mm")),
    Sketcher.Constraint("DistanceY", 17, 2, 22, 3, Q("0.390709 mm")),
    Sketcher.Constraint("DistanceX", 21, 3, 17, 2, Q("1.094112 mm")),
])

additiveloft2 = doc.addObject("PartDesign::AdditiveLoft", "AdditiveLoft001")
body.addObject(additiveloft2)
additiveloft2.Profile = sketch3
additiveloft2.Sections = [sketch4]

doc.recompute()
